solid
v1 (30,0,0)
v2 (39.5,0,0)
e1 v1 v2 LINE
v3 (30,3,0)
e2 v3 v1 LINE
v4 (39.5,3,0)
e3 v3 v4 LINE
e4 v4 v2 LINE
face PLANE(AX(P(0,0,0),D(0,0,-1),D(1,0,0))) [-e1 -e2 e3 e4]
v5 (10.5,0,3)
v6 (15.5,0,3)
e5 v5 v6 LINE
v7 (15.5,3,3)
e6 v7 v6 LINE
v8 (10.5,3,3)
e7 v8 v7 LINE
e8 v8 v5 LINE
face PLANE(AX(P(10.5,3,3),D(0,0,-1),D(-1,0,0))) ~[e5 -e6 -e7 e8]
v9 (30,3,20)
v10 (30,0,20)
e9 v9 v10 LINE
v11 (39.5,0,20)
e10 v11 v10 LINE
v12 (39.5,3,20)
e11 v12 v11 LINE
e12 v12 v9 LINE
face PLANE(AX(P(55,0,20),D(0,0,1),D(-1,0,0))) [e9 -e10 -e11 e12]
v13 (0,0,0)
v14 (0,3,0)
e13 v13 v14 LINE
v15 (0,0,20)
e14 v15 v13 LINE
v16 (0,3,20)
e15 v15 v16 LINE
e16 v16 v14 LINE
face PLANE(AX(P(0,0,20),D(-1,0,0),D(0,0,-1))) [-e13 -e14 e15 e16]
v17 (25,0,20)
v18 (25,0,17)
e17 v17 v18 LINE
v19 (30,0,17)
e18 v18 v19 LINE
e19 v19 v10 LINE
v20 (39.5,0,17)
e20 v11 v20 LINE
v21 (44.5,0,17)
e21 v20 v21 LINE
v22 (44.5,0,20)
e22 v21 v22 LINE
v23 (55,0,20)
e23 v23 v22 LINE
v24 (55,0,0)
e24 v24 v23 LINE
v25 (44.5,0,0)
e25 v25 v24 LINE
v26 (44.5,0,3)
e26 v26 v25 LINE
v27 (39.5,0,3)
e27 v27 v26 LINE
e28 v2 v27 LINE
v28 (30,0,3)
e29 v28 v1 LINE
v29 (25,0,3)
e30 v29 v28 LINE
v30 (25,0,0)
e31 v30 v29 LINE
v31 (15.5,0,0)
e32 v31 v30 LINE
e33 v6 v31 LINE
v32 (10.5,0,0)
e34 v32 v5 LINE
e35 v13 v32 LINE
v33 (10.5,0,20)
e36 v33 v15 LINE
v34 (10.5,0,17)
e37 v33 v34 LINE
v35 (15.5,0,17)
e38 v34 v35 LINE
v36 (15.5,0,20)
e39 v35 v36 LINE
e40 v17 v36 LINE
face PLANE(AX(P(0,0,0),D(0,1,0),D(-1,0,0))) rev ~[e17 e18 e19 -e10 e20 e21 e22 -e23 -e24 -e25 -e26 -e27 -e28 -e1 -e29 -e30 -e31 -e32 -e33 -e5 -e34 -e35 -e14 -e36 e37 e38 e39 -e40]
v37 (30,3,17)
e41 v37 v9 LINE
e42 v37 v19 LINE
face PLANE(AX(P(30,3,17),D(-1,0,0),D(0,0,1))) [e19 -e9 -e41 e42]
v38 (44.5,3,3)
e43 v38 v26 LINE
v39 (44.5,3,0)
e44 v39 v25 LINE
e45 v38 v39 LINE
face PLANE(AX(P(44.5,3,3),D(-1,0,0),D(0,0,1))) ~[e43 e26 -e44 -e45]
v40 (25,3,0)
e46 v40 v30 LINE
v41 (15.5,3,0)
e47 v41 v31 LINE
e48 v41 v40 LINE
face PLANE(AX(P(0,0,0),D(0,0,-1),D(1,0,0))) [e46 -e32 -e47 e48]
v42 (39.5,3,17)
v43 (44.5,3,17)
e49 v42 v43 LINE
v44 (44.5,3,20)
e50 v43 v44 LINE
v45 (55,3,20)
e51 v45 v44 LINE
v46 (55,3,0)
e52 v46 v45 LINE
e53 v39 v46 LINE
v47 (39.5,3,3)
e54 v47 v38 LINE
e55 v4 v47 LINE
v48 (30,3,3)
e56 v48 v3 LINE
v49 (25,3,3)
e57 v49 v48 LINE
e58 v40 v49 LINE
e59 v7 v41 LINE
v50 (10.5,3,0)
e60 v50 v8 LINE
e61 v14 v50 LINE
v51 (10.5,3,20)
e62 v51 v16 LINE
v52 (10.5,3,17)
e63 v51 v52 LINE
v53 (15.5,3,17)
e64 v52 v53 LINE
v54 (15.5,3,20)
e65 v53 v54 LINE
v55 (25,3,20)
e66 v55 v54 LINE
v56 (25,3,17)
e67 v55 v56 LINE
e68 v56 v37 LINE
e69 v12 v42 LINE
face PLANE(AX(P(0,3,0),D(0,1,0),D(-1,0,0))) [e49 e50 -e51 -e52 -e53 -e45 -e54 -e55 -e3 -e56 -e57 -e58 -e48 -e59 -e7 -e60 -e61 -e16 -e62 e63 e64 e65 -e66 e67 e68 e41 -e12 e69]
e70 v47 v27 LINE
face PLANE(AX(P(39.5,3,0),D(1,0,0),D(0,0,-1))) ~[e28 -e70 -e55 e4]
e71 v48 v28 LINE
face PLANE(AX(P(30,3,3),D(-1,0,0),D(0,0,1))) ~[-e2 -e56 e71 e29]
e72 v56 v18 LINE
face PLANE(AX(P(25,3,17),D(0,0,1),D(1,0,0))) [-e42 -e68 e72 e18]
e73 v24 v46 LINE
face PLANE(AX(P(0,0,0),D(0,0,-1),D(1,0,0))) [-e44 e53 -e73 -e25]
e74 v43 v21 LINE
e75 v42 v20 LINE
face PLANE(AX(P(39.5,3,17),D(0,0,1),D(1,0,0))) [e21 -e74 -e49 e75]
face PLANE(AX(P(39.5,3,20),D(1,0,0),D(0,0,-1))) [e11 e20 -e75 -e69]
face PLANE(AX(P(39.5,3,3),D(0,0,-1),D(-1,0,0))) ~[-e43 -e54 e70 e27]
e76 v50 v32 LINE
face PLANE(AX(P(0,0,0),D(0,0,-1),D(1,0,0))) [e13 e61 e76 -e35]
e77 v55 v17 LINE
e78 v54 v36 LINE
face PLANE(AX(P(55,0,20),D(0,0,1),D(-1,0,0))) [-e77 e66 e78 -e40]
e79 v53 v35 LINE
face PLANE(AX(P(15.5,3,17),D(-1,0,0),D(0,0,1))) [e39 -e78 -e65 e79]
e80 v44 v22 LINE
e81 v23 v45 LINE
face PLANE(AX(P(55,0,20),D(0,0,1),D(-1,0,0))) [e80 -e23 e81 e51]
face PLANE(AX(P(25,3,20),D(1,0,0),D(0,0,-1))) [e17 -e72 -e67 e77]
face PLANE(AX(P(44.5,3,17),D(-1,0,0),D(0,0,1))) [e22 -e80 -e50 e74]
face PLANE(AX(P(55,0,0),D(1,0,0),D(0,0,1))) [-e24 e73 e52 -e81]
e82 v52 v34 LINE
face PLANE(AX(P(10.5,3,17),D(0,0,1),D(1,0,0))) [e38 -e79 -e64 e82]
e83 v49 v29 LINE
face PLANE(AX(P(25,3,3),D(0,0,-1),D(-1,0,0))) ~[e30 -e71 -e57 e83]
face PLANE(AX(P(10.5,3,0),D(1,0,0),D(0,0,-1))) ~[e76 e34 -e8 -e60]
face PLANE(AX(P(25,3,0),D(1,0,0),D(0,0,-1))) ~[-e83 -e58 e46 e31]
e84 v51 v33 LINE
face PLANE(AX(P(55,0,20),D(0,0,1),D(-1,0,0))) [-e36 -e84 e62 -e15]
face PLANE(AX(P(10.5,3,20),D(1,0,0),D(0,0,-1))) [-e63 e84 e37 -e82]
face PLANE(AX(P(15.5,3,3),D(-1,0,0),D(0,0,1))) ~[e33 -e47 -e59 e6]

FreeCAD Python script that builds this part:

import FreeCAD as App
import Part
import Sketcher
from FreeCAD import Vector


def add_polygon(sketch, points):
    """Adds a closed chain of lines whose ends are joined by coincident constraints."""
    first, n = sketch.GeometryCount, len(points)
    for a, b in zip(points, points[1:] + points[:1]):
        sketch.addGeometry(Part.LineSegment(App.Vector(*a, 0), App.Vector(*b, 0)), False)
    for i in range(n):
        sketch.addConstraint(Sketcher.Constraint("Coincident", first + i, 2, first + (i + 1) % n, 1))

doc = App.newDocument("Part")
body = doc.addObject("PartDesign::Body", "Body")

sketch1 = body.newObject("Sketcher::SketchObject", "Sketch")
sketch1.AttachmentSupport = (doc.getObject("XZ_Plane"), [""])
sketch1.MapMode = "FlatFace"
add_polygon(sketch1, [(55, 0), (0, 0), (0, 20), (55, 20)])
sketch1.addConstraint([
    Sketcher.Constraint("Horizontal", 0),
    Sketcher.Constraint("Vertical", 1),
    Sketcher.Constraint("Horizontal", 2),
    Sketcher.Constraint("Vertical", 3),
    Sketcher.Constraint("Coincident", 0, 2, -1, 1),
    Sketcher.Constraint("DistanceX", 0, 2, 0, 1, 55.0),
    Sketcher.Constraint("DistanceY", 1, 1, 1, 2, 20.0),
])
pad1 = body.newObject("PartDesign::Pad", "Pad")
pad1.Profile = sketch1
pad1.Length = 3
pad1.Reversed = True

sketch2 = body.newObject("Sketcher::SketchObject", "Sketch001")
sketch2.AttachmentSupport = (doc.getObject("XZ_Plane"), [""])
sketch2.MapMode = "FlatFace"
sketch2.AttachmentOffset = App.Placement(Vector(0, 0, -3), App.Rotation())
add_polygon(sketch2, [(10.5, 17), (10.5, 20), (15.5, 20), (15.5, 17)])
add_polygon(sketch2, [(39.5, 17), (39.5, 20), (44.5, 20), (44.5, 17)])
add_polygon(sketch2, [(25, 17), (25, 20), (30, 20), (30, 17)])
sketch2.addConstraint([
    Sketcher.Constraint("Vertical", 0),
    Sketcher.Constraint("Horizontal", 1),
    Sketcher.Constraint("Vertical", 2),
    Sketcher.Constraint("Horizontal", 3),
    Sketcher.Constraint("Vertical", 4),
    Sketcher.Constraint("Horizontal", 5),
    Sketcher.Constraint("Vertical", 6),
    Sketcher.Constraint("Horizontal", 7),
    Sketcher.Constraint("Vertical", 8),
    Sketcher.Constraint("Horizontal", 9),
    Sketcher.Constraint("Vertical", 10),
    Sketcher.Constraint("Horizontal", 11),
    Sketcher.Constraint("Horizontal", 1, 2, 4, 2),
    Sketcher.Constraint("Horizontal", 3, 2, 6, 2),
    Sketcher.Constraint("Horizontal", 5, 2, 8, 2),
    Sketcher.Constraint("Horizontal", 7, 2, 10, 2),
    Sketcher.Constraint("Equal", 3, 5),
    Sketcher.Constraint("Equal", 7, 9),
    Sketcher.Constraint("DistanceX", 1, 1, 1, 2, 5.0),
    Sketcher.Constraint("DistanceY", 0, 1, 0, 2, 3.0),
    Sketcher.Constraint("DistanceX", 0, 2, 5, 2, 34.0),
    Sketcher.Constraint("DistanceX", -1, 1, 0, 2, 10.5),
    Sketcher.Constraint("DistanceX", 1, 2, 8, 2, 9.5),
    Sketcher.Constraint("DistanceY", -1, 1, 0, 2, 20.0),
])
pocket1 = body.newObject("PartDesign::Pocket", "Pocket")
pocket1.Profile = sketch2
pocket1.Length = 3
pocket1.Reversed = True
doc.recompute()

datumplane = body.newObject("PartDesign::Plane", "DatumPlane")
datumplane.AttachmentSupport = (doc.getObject("XY_Plane"), [""])
datumplane.MapMode = "FlatFace"
datumplane.AttachmentOffset = App.Placement(Vector(0, 0, 10), App.Rotation())
mirrored = body.newObject("PartDesign::Mirrored", "Mirrored")
mirrored.Originals = [pocket1]
mirrored.MirrorPlane = (datumplane, [""])
body.Tip = mirrored

doc.recompute()
